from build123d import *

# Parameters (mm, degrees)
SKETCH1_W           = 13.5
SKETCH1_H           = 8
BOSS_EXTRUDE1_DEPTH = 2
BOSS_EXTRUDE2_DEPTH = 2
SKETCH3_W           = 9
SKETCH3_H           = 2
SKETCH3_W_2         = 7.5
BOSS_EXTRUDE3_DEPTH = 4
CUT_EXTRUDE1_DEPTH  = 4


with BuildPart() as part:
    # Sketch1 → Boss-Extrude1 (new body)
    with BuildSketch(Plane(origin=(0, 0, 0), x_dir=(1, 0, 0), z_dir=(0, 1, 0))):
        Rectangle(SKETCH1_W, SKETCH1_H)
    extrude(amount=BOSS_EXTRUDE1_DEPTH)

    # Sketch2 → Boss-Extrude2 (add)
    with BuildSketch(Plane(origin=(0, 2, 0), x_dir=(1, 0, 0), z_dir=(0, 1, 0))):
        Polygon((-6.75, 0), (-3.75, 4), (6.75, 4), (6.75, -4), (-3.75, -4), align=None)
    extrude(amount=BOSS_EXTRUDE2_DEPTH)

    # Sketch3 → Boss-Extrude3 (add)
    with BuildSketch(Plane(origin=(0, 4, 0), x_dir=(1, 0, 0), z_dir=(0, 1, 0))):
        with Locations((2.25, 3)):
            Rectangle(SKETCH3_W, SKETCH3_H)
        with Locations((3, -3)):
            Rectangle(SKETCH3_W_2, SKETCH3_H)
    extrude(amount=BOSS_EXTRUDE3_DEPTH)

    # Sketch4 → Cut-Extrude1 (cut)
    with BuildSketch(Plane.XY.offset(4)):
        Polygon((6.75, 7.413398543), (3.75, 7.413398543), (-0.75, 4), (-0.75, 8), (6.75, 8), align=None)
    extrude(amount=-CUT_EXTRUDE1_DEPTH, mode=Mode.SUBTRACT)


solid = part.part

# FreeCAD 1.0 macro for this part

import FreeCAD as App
import Part
import Sketcher

V = App.Vector


def add_polygon(sketch, points):
    """Adds a closed chain of lines whose ends are joined by coincident constraints."""
    first, n = sketch.GeometryCount, len(points)
    for a, b in zip(points, points[1:] + points[:1]):
        sketch.addGeometry(Part.LineSegment(App.Vector(*a, 0), App.Vector(*b, 0)), False)
    for i in range(n):
        sketch.addConstraint(Sketcher.Constraint("Coincident", first + i, 2, first + (i + 1) % n, 1))

doc = App.newDocument("Part")
body = doc.addObject("PartDesign::Body", "Body")

# Sketch on XZ plane
sketch1 = body.newObject("Sketcher::SketchObject", "Sketch")
sketch1.AttachmentSupport = (doc.getObject("XZ_Plane"), [""])
sketch1.MapMode = "FlatFace"
add_polygon(sketch1, [(-6.75, -4), (-6.75, 4), (6.75, 4), (6.75, -4)])  # lines 0-3
sketch1.addConstraint([
    Sketcher.Constraint("Vertical", 0),
    Sketcher.Constraint("Horizontal", 1),
    Sketcher.Constraint("Vertical", 2),
    Sketcher.Constraint("Horizontal", 3),
    Sketcher.Constraint("Symmetric", 0, 2, 2, 2, -1, 1),
    Sketcher.Constraint("DistanceY", 0, 1, 0, 2, 8.0),
    Sketcher.Constraint("DistanceX", 1, 1, 1, 2, 13.5),
])
pad1 = body.newObject("PartDesign::Pad", "Pad")
pad1.Profile = sketch1
pad1.Length = 2
pad1.Reversed = True

# Sketch on XZ plane
sketch2 = body.newObject("Sketcher::SketchObject", "Sketch001")
sketch2.AttachmentSupport = (doc.getObject("XZ_Plane"), [""])
sketch2.MapMode = "FlatFace"
sketch2.AttachmentOffset = App.Placement(V(0, 0, -2), App.Rotation())
add_polygon(sketch2, [(-3.75, -4), (-6.75, 0), (-3.75, 4), (6.75, 4), (6.75, -4)])  # lines 0-4
sketch2.addConstraint([
    Sketcher.Constraint("Horizontal", 2),
    Sketcher.Constraint("Vertical", 3),
    Sketcher.Constraint("Horizontal", 4),
    Sketcher.Constraint("Symmetric", 1, 2, 4, 2, -1),
    Sketcher.Constraint("PointOnObject", 0, 2, -1),
    Sketcher.Constraint("DistanceY", 3, 2, 3, 1, 8.0),
    Sketcher.Constraint("Distance", 0, 5.0),
    Sketcher.Constraint("DistanceX", 2, 1, 2, 2, 10.5),
    Sketcher.Constraint("DistanceX", 0, 2, -1, 1, 6.75),
])
pad2 = body.newObject("PartDesign::Pad", "Pad001")
pad2.Profile = sketch2
pad2.Length = 2
pad2.Reversed = True

# Sketch on XZ plane
sketch3 = body.newObject("Sketcher::SketchObject", "Sketch002")
sketch3.AttachmentSupport = (doc.getObject("XZ_Plane"), [""])
sketch3.MapMode = "FlatFace"
sketch3.AttachmentOffset = App.Placement(V(0, 0, -4), App.Rotation())
add_polygon(sketch3, [(-2.25, -4), (-2.25, -2), (6.75, -2), (6.75, -4)])  # lines 0-3
add_polygon(sketch3, [(-0.75, 2), (-0.75, 4), (6.75, 4), (6.75, 2)])  # lines 4-7
sketch3.addConstraint([
    Sketcher.Constraint("Vertical", 0),
    Sketcher.Constraint("Horizontal", 1),
    Sketcher.Constraint("Vertical", 2),
    Sketcher.Constraint("Horizontal", 3),
    Sketcher.Constraint("Vertical", 4),
    Sketcher.Constraint("Horizontal", 5),
    Sketcher.Constraint("Vertical", 6),
    Sketcher.Constraint("Horizontal", 7),
    Sketcher.Constraint("Symmetric", 2, 2, 5, 2, -1),
    Sketcher.Constraint("Equal", 2, 4),
    Sketcher.Constraint("DistanceX", 1, 1, 1, 2, 9.0),
    Sketcher.Constraint("DistanceY", 0, 1, 0, 2, 2.0),
    Sketcher.Constraint("DistanceX", 5, 1, 5, 2, 7.5),
    Sketcher.Constraint("DistanceY", 0, 2, -1, 1, 2.0),
    Sketcher.Constraint("DistanceX", 0, 2, -1, 1, 2.25),
])
pad3 = body.newObject("PartDesign::Pad", "Pad002")
pad3.Profile = sketch3
pad3.Length = 4
pad3.Reversed = True

# Sketch on XY plane
sketch4 = body.newObject("Sketcher::SketchObject", "Sketch003")
sketch4.AttachmentSupport = (doc.getObject("XY_Plane"), [""])
sketch4.MapMode = "FlatFace"
sketch4.AttachmentOffset = App.Placement(V(0, 0, 4), App.Rotation())
add_polygon(sketch4, [(3.75, 7.413399), (6.75, 7.413399), (6.75, 8), (-0.75, 8), (-0.75, 4)])  # lines 0-4
sketch4.addConstraint([
    Sketcher.Constraint("Horizontal", 0),
    Sketcher.Constraint("Vertical", 1),
    Sketcher.Constraint("Horizontal", 2),
    Sketcher.Constraint("Vertical", 3),
    Sketcher.Constraint("DistanceX", 0, 1, 0, 2, 3.0),
    Sketcher.Constraint("DistanceY", 3, 2, 3, 1, 4.0),
    Sketcher.Constraint("DistanceX", 2, 2, 2, 1, 7.5),
    Sketcher.Constraint("DistanceY", -1, 1, 1, 2, 8.0),
    Sketcher.Constraint("DistanceX", -1, 1, 0, 2, 6.75),
    Sketcher.Constraint("DistanceY", 1, 1, 1, 2, 0.586601),
])
pocket1 = body.newObject("PartDesign::Pocket", "Pocket")
pocket1.Profile = sketch4
pocket1.Length = 4

doc.recompute()
